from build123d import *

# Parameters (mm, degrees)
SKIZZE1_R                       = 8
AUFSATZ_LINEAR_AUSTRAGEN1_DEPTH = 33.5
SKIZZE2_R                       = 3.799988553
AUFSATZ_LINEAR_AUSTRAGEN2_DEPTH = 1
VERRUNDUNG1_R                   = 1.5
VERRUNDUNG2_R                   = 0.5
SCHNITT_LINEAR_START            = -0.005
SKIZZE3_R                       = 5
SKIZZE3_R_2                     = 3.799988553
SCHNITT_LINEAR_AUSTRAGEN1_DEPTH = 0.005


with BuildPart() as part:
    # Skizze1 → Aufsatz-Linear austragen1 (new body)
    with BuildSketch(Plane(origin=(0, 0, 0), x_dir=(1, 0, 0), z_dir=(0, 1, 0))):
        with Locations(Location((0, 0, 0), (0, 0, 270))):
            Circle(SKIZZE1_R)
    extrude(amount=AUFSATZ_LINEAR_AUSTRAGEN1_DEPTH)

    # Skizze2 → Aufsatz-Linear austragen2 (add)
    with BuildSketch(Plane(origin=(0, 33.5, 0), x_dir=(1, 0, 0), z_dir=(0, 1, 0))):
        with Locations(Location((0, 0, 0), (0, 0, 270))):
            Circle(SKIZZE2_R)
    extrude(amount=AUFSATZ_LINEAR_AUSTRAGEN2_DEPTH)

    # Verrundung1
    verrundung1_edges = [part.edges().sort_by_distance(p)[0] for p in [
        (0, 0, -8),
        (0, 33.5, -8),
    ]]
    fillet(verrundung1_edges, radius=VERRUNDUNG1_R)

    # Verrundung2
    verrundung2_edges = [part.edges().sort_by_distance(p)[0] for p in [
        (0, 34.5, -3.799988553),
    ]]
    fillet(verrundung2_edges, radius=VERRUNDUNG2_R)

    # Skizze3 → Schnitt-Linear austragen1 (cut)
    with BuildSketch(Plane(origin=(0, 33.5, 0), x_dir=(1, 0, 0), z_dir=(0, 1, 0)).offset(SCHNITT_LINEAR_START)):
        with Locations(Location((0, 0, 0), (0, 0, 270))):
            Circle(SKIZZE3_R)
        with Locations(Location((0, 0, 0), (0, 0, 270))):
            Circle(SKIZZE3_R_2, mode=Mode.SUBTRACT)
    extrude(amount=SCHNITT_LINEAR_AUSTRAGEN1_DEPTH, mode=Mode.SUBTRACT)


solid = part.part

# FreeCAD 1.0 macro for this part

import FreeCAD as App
import Part
import Sketcher

V = App.Vector
Q = App.Units.Quantity


def edges_at(feature, points):
    """Names of the edges that pass closest to the given points."""
    edges = feature.Shape.Edges
    near = lambda p: min(range(len(edges)), key=lambda i: edges[i].distToShape(Part.Vertex(*p))[0])
    return sorted({f"Edge{near(p) + 1}" for p in points})

doc = App.newDocument("Part")
params = doc.addObject("Spreadsheet::Sheet", "Params")
for row, (alias, value) in enumerate([
    ("sketch1_diameter", "16 mm"),
    ("pad1_length", "33.5 mm"),
    ("pad2_length", "1 mm"),
    ("fillet_radius", "1.5 mm"),
    ("fillet2_radius", "0.5 mm"),
    ("sketch3_diameter", "10 mm"),
    ("pocket1_length", "0.005 mm"),
], start=1):
    params.set(f"A{row}", alias)
    params.set(f"B{row}", "=" + value)
    params.setAlias(f"B{row}", alias)

body = doc.addObject("PartDesign::Body", "Body")

# Sketch on XZ plane
sketch1 = body.newObject("Sketcher::SketchObject", "Sketch")
sketch1.AttachmentSupport = (doc.getObject("XZ_Plane"), [""])
sketch1.MapMode = "FlatFace"
sketch1.addGeometry(Part.Circle(V(0, 0, 0), V(0, 0, 1), 8), False)
sketch1.addConstraint(Sketcher.Constraint("Coincident", 0, 3, -1, 1))
sketch1.addConstraint(Sketcher.Constraint("Diameter", 0, Q("16 mm")))
sketch1.setExpression("Constraints[1]", "Params.sketch1_diameter")
pad1 = body.newObject("PartDesign::Pad", "Pad")
pad1.Profile = sketch1
pad1.setExpression("Length", "Params.pad1_length")
pad1.Reversed = True

# Sketch on XZ plane
sketch2 = body.newObject("Sketcher::SketchObject", "Sketch001")
sketch2.AttachmentSupport = (doc.getObject("XZ_Plane"), [""])
sketch2.MapMode = "FlatFace"
sketch2.AttachmentOffset = App.Placement(V(0, 0, -33.5), App.Rotation())
sketch2.addGeometry(Part.Circle(V(0, 0, 0), V(0, 0, 1), 3.8), False)
sketch2.addConstraint(Sketcher.Constraint("Coincident", 0, 3, -1, 1))
sketch2.addConstraint(Sketcher.Constraint("Diameter", 0, Q("7.599977 mm")))
pad2 = body.newObject("PartDesign::Pad", "Pad001")
pad2.Profile = sketch2
pad2.setExpression("Length", "Params.pad2_length")
pad2.Reversed = True
doc.recompute()

fillet = body.newObject("PartDesign::Fillet", "Fillet")
fillet.Base = (pad2, edges_at(pad2, [(0, 0, -8), (0, 33.5, -8)]))
fillet.setExpression("Radius", "Params.fillet_radius")
doc.recompute()

fillet2 = body.newObject("PartDesign::Fillet", "Fillet001")
fillet2.Base = (fillet, edges_at(fillet, [(0, 34.5, -3.8)]))
fillet2.setExpression("Radius", "Params.fillet2_radius")

# Sketch on XZ plane
sketch3 = body.newObject("Sketcher::SketchObject", "Sketch002")
sketch3.AttachmentSupport = (doc.getObject("XZ_Plane"), [""])
sketch3.MapMode = "FlatFace"
sketch3.AttachmentOffset = App.Placement(V(0, 0, -33.495), App.Rotation())
sketch3.addGeometry(Part.Circle(V(0, 0, 0), V(0, 0, 1), 5), False)
sketch3.addGeometry(Part.Circle(V(0, 0, 0), V(0, 0, 1), 3.8), False)
sketch3.addConstraint(Sketcher.Constraint("Coincident", 0, 3, -1, 1))
sketch3.addConstraint(Sketcher.Constraint("Coincident", 1, 3, -1, 1))
sketch3.addConstraint(Sketcher.Constraint("Diameter", 0, Q("10 mm")))
sketch3.addConstraint(Sketcher.Constraint("Diameter", 1, Q("7.599977 mm")))
sketch3.setExpression("Constraints[2]", "Params.sketch3_diameter")
pocket1 = body.newObject("PartDesign::Pocket", "Pocket")
pocket1.Profile = sketch3
pocket1.setExpression("Length", "Params.pocket1_length")

doc.recompute()
